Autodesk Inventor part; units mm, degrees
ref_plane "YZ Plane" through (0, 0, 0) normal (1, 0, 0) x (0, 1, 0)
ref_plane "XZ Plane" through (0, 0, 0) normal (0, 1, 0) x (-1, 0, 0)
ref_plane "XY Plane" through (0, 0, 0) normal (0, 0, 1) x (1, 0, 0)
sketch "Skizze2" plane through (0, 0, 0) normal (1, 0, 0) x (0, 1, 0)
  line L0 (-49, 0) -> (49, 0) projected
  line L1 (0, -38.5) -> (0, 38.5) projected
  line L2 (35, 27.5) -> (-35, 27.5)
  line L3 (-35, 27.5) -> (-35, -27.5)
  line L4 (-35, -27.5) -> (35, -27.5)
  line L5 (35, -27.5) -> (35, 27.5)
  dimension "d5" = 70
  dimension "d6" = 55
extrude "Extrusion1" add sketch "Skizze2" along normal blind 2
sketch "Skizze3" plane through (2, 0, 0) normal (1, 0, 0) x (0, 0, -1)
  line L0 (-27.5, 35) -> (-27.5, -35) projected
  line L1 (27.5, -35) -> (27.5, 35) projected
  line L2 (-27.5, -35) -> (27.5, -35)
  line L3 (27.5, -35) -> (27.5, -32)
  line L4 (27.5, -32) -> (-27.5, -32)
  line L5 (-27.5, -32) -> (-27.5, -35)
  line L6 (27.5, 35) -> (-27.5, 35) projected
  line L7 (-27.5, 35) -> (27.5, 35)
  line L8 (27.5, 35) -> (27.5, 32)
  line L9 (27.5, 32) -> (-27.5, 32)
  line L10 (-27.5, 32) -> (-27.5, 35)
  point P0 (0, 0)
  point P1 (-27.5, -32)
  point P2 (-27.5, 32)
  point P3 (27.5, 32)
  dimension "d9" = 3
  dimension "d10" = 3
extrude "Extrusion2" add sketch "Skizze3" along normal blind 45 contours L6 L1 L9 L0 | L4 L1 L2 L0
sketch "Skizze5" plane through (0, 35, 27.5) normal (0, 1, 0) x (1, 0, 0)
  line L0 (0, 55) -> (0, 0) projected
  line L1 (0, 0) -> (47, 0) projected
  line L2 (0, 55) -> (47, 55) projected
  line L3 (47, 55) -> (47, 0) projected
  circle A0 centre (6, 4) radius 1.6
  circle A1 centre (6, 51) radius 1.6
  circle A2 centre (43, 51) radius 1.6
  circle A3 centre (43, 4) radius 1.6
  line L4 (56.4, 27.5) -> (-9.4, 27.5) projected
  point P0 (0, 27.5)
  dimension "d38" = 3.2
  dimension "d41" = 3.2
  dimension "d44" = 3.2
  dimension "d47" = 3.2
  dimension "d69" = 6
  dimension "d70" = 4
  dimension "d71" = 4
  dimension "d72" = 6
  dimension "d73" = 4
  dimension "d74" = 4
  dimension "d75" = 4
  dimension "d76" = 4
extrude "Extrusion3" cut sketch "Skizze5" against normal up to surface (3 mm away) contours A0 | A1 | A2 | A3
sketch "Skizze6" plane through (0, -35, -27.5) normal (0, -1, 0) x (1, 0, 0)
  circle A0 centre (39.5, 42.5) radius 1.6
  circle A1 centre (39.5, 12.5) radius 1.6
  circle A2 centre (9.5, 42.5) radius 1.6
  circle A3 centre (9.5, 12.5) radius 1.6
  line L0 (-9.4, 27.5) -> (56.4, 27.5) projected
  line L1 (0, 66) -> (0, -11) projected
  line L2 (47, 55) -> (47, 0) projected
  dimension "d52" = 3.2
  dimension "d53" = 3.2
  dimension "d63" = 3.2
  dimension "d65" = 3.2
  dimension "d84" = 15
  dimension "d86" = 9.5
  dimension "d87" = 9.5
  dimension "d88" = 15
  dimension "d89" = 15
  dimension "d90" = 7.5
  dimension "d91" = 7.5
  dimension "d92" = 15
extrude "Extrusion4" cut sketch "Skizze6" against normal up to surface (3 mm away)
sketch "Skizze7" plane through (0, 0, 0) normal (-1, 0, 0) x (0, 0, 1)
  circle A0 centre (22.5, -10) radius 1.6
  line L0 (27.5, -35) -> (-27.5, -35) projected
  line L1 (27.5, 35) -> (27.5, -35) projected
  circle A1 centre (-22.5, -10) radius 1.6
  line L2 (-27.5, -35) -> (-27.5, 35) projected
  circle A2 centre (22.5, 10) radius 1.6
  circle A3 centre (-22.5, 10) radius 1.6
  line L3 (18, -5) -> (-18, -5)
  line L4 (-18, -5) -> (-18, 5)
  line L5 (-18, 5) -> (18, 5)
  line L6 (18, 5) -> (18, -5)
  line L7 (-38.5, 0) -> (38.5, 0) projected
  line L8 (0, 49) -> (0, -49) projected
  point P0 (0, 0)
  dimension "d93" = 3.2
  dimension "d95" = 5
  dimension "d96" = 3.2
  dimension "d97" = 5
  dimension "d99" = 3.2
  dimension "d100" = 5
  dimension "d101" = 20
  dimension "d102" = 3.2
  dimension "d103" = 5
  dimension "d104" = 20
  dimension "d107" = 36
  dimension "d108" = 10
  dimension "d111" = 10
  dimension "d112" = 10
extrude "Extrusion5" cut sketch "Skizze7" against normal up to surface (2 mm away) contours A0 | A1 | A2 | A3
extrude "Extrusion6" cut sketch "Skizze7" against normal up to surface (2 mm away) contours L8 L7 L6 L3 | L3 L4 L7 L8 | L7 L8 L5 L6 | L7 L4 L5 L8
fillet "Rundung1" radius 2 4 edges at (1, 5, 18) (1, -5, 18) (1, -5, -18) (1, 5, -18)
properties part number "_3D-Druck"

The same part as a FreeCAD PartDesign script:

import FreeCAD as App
import Part
import Sketcher

V = App.Vector


def edges_at(feature, points):
    """Names of the edges that pass closest to the given points."""
    edges = feature.Shape.Edges
    near = lambda p: min(range(len(edges)), key=lambda i: edges[i].distToShape(Part.Vertex(*p))[0])
    return sorted({f"Edge{near(p) + 1}" for p in points})


def add_polygon(sketch, points):
    """Adds a closed chain of lines whose ends are joined by coincident constraints."""
    first, n = sketch.GeometryCount, len(points)
    for a, b in zip(points, points[1:] + points[:1]):
        sketch.addGeometry(Part.LineSegment(App.Vector(*a, 0), App.Vector(*b, 0)), False)
    for i in range(n):
        sketch.addConstraint(Sketcher.Constraint("Coincident", first + i, 2, first + (i + 1) % n, 1))

doc = App.newDocument("Part")
body = doc.addObject("PartDesign::Body", "Body")

# Sketch on YZ plane
sketch1 = body.newObject("Sketcher::SketchObject", "Sketch")
sketch1.AttachmentSupport = (doc.getObject("YZ_Plane"), [""])
sketch1.MapMode = "FlatFace"
add_polygon(sketch1, [(-35, 28), (-35, -28), (35, -28), (35, 28)])  # lines 0-3
sketch1.addConstraint(Sketcher.Constraint("Vertical", 0))
sketch1.addConstraint(Sketcher.Constraint("Horizontal", 1))
sketch1.addConstraint(Sketcher.Constraint("Vertical", 2))
sketch1.addConstraint(Sketcher.Constraint("Horizontal", 3))
sketch1.addConstraint(Sketcher.Constraint("Symmetric", 0, 2, 2, 2, -1, 1))
sketch1.addConstraint(Sketcher.Constraint("DistanceX", 1, 1, 1, 2, 70.0))
sketch1.addConstraint(Sketcher.Constraint("DistanceY", 0, 2, 0, 1, 55.0))
pad1 = body.newObject("PartDesign::Pad", "Pad")
pad1.Profile = sketch1
pad1.Length = 2

# Sketch on YZ plane
sketch2 = body.newObject("Sketcher::SketchObject", "Sketch001")
sketch2.AttachmentSupport = (doc.getObject("YZ_Plane"), [""])
sketch2.MapMode = "FlatFace"
sketch2.AttachmentOffset = App.Placement(V(0, 0, 2), App.Rotation())
add_polygon(sketch2, [(35, -27.5), (35, 27.5), (32, 27.5), (32, -27.5)])  # lines 0-3
add_polygon(sketch2, [(-32, -27.5), (-32, 27.5), (-35, 27.5), (-35, -27.5)])  # lines 4-7
sketch2.addConstraint(Sketcher.Constraint("Vertical", 0))
sketch2.addConstraint(Sketcher.Constraint("Horizontal", 1))
sketch2.addConstraint(Sketcher.Constraint("Vertical", 2))
sketch2.addConstraint(Sketcher.Constraint("Horizontal", 3))
sketch2.addConstraint(Sketcher.Constraint("Vertical", 4))
sketch2.addConstraint(Sketcher.Constraint("Horizontal", 5))
sketch2.addConstraint(Sketcher.Constraint("Vertical", 6))
sketch2.addConstraint(Sketcher.Constraint("Horizontal", 7))
sketch2.addConstraint(Sketcher.Constraint("Symmetric", 2, 2, 4, 2, -1, 1))
sketch2.addConstraint(Sketcher.Constraint("Symmetric", 0, 2, 6, 2, -1, 1))
sketch2.addConstraint(Sketcher.Constraint("Horizontal", 1, 2, 4, 2))
sketch2.addConstraint(Sketcher.Constraint("DistanceX", 1, 2, 1, 1, 3.0))
sketch2.addConstraint(Sketcher.Constraint("DistanceY", 0, 1, 0, 2, 55.0))
sketch2.addConstraint(Sketcher.Constraint("DistanceX", -1, 1, 0, 2, 35.0))
pad2 = body.newObject("PartDesign::Pad", "Pad001")
pad2.Profile = sketch2
pad2.Length = 45

# Sketch on XZ plane
sketch3 = body.newObject("Sketcher::SketchObject", "Sketch002")
sketch3.AttachmentSupport = (doc.getObject("XZ_Plane"), [""])
sketch3.MapMode = "FlatFace"
sketch3.AttachmentOffset = App.Placement(V(0, 0, -35), App.Rotation())
sketch3.addGeometry(Part.Circle(V(6, 23.5, 0), V(0, 0, 1), 1.6), False)
sketch3.addGeometry(Part.Circle(V(6, -23.5, 0), V(0, 0, 1), 1.6), False)
sketch3.addGeometry(Part.Circle(V(43, -23.5, 0), V(0, 0, 1), 1.6), False)
sketch3.addGeometry(Part.Circle(V(43, 23.5, 0), V(0, 0, 1), 1.6), False)
sketch3.addConstraint(Sketcher.Constraint("Equal", 0, 1))
sketch3.addConstraint(Sketcher.Constraint("Equal", 1, 2))
sketch3.addConstraint(Sketcher.Constraint("Equal", 2, 3))
sketch3.addConstraint(Sketcher.Constraint("Symmetric", 0, 3, 1, 3, -1))
sketch3.addConstraint(Sketcher.Constraint("Symmetric", 2, 3, 3, 3, -1))
sketch3.addConstraint(Sketcher.Constraint("Horizontal", 1, 3, 2, 3))
sketch3.addConstraint(Sketcher.Constraint("Diameter", 0, 3.2))
sketch3.addConstraint(Sketcher.Constraint("DistanceX", -1, 1, 0, 3, 6.0))
sketch3.addConstraint(Sketcher.Constraint("DistanceX", -1, 1, 2, 3, 43.0))
sketch3.addConstraint(Sketcher.Constraint("DistanceY", 1, 3, 0, 3, 47.0))
pocket1 = body.newObject("PartDesign::Pocket", "Pocket")
pocket1.Profile = sketch3
pocket1.Length = 3
pocket1.Reversed = True

# Sketch on XZ plane
sketch4 = body.newObject("Sketcher::SketchObject", "Sketch003")
sketch4.AttachmentSupport = (doc.getObject("XZ_Plane"), [""])
sketch4.MapMode = "FlatFace"
sketch4.AttachmentOffset = App.Placement(V(0, 0, 35), App.Rotation())
sketch4.addGeometry(Part.Circle(V(39.5, 15, 0), V(0, 0, 1), 1.6), False)
sketch4.addGeometry(Part.Circle(V(39.5, -15, 0), V(0, 0, 1), 1.6), False)
sketch4.addGeometry(Part.Circle(V(9.5, 15, 0), V(0, 0, 1), 1.6), False)
sketch4.addGeometry(Part.Circle(V(9.5, -15, 0), V(0, 0, 1), 1.6), False)
sketch4.addConstraint(Sketcher.Constraint("Equal", 0, 1))
sketch4.addConstraint(Sketcher.Constraint("Equal", 1, 2))
sketch4.addConstraint(Sketcher.Constraint("Equal", 2, 3))
sketch4.addConstraint(Sketcher.Constraint("Symmetric", 0, 3, 1, 3, -1))
sketch4.addConstraint(Sketcher.Constraint("Symmetric", 2, 3, 3, 3, -1))
sketch4.addConstraint(Sketcher.Constraint("Horizontal", 0, 3, 2, 3))
sketch4.addConstraint(Sketcher.Constraint("Diameter", 0, 3.2))
sketch4.addConstraint(Sketcher.Constraint("DistanceY", -1, 1, 0, 3, 15.0))
sketch4.addConstraint(Sketcher.Constraint("DistanceX", -1, 1, 2, 3, 9.5))
sketch4.addConstraint(Sketcher.Constraint("DistanceX", 2, 3, 0, 3, 30.0))
pocket2 = body.newObject("PartDesign::Pocket", "Pocket001")
pocket2.Profile = sketch4
pocket2.Length = 3

# Sketch on YZ plane
sketch5 = body.newObject("Sketcher::SketchObject", "Sketch004")
sketch5.AttachmentSupport = (doc.getObject("YZ_Plane"), [""])
sketch5.MapMode = "FlatFace"
sketch5.addGeometry(Part.Circle(V(-10, 22.5, 0), V(0, 0, 1), 1.6), False)
sketch5.addGeometry(Part.Circle(V(-10, -22.5, 0), V(0, 0, 1), 1.6), False)
sketch5.addGeometry(Part.Circle(V(10, 22.5, 0), V(0, 0, 1), 1.6), False)
sketch5.addGeometry(Part.Circle(V(10, -22.5, 0), V(0, 0, 1), 1.6), False)
sketch5.addConstraint(Sketcher.Constraint("Equal", 0, 1))
sketch5.addConstraint(Sketcher.Constraint("Equal", 1, 2))
sketch5.addConstraint(Sketcher.Constraint("Equal", 2, 3))
sketch5.addConstraint(Sketcher.Constraint("Symmetric", 1, 3, 2, 3, -1, 1))
sketch5.addConstraint(Sketcher.Constraint("Symmetric", 0, 3, 3, 3, -1, 1))
sketch5.addConstraint(Sketcher.Constraint("Symmetric", 0, 3, 2, 3, -2))
sketch5.addConstraint(Sketcher.Constraint("Diameter", 0, 3.2))
sketch5.addConstraint(Sketcher.Constraint("DistanceX", 0, 3, -1, 1, 10.0))
sketch5.addConstraint(Sketcher.Constraint("DistanceY", 1, 3, 0, 3, 45.0))
pocket3 = body.newObject("PartDesign::Pocket", "Pocket002")
pocket3.Profile = sketch5
pocket3.Length = 2
pocket3.Reversed = True

# Sketch on YZ plane
sketch6 = body.newObject("Sketcher::SketchObject", "Sketch005")
sketch6.AttachmentSupport = (doc.getObject("YZ_Plane"), [""])
sketch6.MapMode = "FlatFace"
add_polygon(sketch6, [(-5, 18), (5, 18), (5, -18), (-5, -18)])  # lines 0-3
sketch6.addConstraint(Sketcher.Constraint("Horizontal", 0))
sketch6.addConstraint(Sketcher.Constraint("Vertical", 1))
sketch6.addConstraint(Sketcher.Constraint("Horizontal", 2))
sketch6.addConstraint(Sketcher.Constraint("Vertical", 3))
sketch6.addConstraint(Sketcher.Constraint("Symmetric", 0, 2, 2, 2, -1, 1))
sketch6.addConstraint(Sketcher.Constraint("DistanceX", 0, 1, 0, 2, 10.0))
sketch6.addConstraint(Sketcher.Constraint("DistanceY", 1, 2, 1, 1, 36.0))
pocket4 = body.newObject("PartDesign::Pocket", "Pocket003")
pocket4.Profile = sketch6
pocket4.Length = 2
pocket4.Reversed = True
doc.recompute()

fillet = body.newObject("PartDesign::Fillet", "Fillet")
fillet.Base = (pocket4, edges_at(pocket4, [
    (1, 5, 18),
    (1, -5, 18),
    (1, -5, -18),
    (1, 5, -18),
]))
fillet.Radius = 2

doc.recompute()
